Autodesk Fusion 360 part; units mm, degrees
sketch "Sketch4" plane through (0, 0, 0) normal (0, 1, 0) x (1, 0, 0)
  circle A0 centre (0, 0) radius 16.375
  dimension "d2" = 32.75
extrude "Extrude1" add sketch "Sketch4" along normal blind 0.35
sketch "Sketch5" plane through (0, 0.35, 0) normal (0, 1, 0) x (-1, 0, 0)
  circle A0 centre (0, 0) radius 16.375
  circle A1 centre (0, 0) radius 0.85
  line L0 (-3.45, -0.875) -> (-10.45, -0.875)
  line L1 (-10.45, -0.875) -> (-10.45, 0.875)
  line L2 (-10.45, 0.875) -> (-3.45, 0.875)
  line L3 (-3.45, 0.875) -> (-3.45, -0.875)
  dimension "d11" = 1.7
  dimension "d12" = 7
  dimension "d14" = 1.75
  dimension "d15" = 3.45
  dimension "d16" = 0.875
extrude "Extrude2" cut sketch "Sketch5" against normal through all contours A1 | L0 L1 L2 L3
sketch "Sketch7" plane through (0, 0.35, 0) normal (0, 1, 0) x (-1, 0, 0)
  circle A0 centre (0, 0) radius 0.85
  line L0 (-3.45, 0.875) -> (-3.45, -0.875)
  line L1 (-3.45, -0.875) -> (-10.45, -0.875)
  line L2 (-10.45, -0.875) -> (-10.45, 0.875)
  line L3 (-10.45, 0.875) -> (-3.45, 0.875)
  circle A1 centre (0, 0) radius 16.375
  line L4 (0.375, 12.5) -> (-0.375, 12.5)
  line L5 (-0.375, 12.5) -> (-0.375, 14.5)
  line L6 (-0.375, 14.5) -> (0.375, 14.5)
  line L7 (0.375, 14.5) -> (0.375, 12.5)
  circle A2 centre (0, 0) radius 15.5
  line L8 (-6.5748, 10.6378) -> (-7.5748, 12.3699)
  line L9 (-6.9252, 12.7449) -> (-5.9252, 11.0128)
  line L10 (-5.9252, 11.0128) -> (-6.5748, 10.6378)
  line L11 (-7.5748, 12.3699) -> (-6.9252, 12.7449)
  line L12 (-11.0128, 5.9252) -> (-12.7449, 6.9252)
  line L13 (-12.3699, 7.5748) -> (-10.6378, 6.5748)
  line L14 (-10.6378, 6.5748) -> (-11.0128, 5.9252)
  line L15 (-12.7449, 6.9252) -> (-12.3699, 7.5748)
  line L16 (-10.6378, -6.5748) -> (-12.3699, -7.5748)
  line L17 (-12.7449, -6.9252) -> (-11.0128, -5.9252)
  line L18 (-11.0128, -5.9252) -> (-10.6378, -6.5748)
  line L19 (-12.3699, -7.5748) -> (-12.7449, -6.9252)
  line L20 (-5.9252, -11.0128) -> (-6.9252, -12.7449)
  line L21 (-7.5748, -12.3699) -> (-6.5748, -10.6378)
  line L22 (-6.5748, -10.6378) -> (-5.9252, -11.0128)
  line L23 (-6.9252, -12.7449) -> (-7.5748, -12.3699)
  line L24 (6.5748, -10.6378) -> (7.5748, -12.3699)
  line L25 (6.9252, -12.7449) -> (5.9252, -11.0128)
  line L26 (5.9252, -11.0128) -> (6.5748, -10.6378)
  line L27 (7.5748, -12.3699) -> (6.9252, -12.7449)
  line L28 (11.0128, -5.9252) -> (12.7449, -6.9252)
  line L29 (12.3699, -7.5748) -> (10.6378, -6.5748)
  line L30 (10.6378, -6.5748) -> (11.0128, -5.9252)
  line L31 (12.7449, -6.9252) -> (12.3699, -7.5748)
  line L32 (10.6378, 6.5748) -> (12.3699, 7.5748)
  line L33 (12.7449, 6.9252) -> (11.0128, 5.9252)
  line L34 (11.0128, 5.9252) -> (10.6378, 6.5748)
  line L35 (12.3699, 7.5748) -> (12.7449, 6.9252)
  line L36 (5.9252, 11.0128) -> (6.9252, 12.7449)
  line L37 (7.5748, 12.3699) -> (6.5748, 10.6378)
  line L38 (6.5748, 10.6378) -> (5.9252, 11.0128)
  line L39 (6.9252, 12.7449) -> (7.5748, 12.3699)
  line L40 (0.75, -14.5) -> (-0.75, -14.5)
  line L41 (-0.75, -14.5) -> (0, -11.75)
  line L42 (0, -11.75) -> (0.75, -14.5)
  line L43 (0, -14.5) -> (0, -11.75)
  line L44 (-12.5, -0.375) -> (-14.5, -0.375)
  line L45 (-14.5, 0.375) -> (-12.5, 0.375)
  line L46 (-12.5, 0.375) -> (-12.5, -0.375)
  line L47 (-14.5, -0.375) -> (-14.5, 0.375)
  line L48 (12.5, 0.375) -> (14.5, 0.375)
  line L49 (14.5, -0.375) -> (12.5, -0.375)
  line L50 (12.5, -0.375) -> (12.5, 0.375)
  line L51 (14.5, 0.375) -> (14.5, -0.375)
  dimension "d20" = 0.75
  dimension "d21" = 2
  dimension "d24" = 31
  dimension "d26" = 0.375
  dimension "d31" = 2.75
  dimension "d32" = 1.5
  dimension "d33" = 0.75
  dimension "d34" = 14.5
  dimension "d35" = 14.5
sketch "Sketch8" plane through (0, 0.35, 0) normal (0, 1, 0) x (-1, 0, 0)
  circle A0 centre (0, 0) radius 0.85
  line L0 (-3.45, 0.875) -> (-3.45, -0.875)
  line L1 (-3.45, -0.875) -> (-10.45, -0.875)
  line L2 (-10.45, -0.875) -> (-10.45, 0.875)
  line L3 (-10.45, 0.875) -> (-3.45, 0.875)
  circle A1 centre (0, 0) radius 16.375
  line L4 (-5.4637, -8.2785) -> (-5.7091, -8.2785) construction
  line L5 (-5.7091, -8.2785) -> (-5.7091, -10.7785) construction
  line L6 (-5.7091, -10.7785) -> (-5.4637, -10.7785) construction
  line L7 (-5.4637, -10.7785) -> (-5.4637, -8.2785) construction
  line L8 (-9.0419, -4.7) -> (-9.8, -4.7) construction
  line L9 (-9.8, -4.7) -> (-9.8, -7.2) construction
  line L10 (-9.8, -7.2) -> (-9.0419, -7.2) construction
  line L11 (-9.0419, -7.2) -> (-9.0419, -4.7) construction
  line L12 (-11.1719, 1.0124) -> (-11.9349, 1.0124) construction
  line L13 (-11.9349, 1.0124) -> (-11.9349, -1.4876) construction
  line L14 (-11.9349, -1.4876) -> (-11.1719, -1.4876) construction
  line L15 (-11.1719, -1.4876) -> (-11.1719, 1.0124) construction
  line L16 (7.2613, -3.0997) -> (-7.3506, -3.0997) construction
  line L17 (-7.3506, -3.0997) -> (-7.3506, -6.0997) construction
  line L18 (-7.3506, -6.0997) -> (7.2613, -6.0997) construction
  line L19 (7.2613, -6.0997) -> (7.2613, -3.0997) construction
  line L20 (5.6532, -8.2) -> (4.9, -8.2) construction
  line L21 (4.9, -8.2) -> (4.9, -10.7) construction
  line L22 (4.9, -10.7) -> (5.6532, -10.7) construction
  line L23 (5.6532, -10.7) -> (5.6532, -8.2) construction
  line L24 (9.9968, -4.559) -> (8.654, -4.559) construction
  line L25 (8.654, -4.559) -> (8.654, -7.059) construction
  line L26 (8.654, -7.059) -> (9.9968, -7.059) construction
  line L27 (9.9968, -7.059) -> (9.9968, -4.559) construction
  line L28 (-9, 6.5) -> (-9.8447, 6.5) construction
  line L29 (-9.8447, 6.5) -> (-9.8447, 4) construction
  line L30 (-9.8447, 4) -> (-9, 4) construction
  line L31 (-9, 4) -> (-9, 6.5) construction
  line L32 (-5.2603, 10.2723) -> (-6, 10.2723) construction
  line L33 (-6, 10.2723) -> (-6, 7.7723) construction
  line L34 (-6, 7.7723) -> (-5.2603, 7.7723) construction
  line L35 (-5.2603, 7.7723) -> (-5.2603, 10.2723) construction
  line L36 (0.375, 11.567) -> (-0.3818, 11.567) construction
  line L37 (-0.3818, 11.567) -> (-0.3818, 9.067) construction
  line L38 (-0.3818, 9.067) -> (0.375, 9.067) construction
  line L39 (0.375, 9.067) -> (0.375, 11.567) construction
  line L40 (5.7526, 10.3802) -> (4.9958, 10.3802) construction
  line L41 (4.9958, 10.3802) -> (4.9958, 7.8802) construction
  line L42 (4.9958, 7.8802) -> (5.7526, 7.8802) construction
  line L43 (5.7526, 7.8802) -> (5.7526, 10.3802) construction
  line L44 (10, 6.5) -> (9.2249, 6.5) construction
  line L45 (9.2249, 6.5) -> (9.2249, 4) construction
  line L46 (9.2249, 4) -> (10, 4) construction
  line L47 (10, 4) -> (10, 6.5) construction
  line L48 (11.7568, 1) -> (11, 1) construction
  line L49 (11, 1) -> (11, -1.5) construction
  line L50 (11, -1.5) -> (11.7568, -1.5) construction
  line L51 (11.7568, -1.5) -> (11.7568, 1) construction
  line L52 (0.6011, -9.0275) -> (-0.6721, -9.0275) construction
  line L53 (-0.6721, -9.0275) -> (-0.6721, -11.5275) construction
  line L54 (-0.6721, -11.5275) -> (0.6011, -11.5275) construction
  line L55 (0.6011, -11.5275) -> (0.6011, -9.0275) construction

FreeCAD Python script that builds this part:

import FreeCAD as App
import Part
import Sketcher


def add_polygon(sketch, points):
    """Adds a closed chain of lines whose ends are joined by coincident constraints."""
    first, n = sketch.GeometryCount, len(points)
    for a, b in zip(points, points[1:] + points[:1]):
        sketch.addGeometry(Part.LineSegment(App.Vector(*a, 0), App.Vector(*b, 0)), False)
    for i in range(n):
        sketch.addConstraint(Sketcher.Constraint("Coincident", first + i, 2, first + (i + 1) % n, 1))

doc = App.newDocument("Part")
params = doc.addObject("Spreadsheet::Sheet", "Params")
for row, (alias, value) in enumerate([
    ("sketch1_diameter", "32.75 mm"),
    ("pad1_length", "0.35 mm"),
    ("sketch2_diameter", "1.7 mm"),
    ("sketch2_width", "7 mm"),
    ("sketch2_height", "1.75 mm"),
], start=1):
    params.set(f"A{row}", alias)
    params.set(f"B{row}", "=" + value)
    params.setAlias(f"B{row}", alias)

body = doc.addObject("PartDesign::Body", "Body")

# Sketch on XZ plane
sketch1 = body.newObject("Sketcher::SketchObject", "Sketch")
sketch1.AttachmentSupport = (doc.getObject("XZ_Plane"), [""])
sketch1.MapMode = "FlatFace"
sketch1.addGeometry(Part.Circle(App.Vector(0, 0, 0), App.Vector(0, 0, 1), 16), False)
sketch1.addConstraint(Sketcher.Constraint("Coincident", 0, 3, -1, 1))
sketch1.addConstraint(Sketcher.Constraint("Diameter", 0, 32.75))
sketch1.setExpression("Constraints[1]", "Params.sketch1_diameter")
pad1 = body.newObject("PartDesign::Pad", "Pad")
pad1.Profile = sketch1
pad1.setExpression("Length", "Params.pad1_length")
pad1.Reversed = True

# Sketch on XZ plane
sketch2 = body.newObject("Sketcher::SketchObject", "Sketch001")
sketch2.AttachmentSupport = (doc.getObject("XZ_Plane"), [""])
sketch2.MapMode = "FlatFace"
sketch2.AttachmentOffset = App.Placement(App.Vector(0, 0, -0.35), App.Rotation())
sketch2.addGeometry(Part.Circle(App.Vector(0, 0, 0), App.Vector(0, 0, 1), 0.8), False)  # 0
add_polygon(sketch2, [(10.4, -0.9), (3.5, -0.9), (3.5, 0.9), (10.4, 0.9)])  # lines 1-4
sketch2.addConstraint(Sketcher.Constraint("Horizontal", 1))
sketch2.addConstraint(Sketcher.Constraint("Vertical", 2))
sketch2.addConstraint(Sketcher.Constraint("Horizontal", 3))
sketch2.addConstraint(Sketcher.Constraint("Vertical", 4))
sketch2.addConstraint(Sketcher.Constraint("Coincident", 0, 3, -1, 1))
sketch2.addConstraint(Sketcher.Constraint("Diameter", 0, 1.7))
sketch2.addConstraint(Sketcher.Constraint("DistanceX", 1, 2, 1, 1, 7.0))
sketch2.addConstraint(Sketcher.Constraint("DistanceY", 2, 1, 2, 2, 1.75))
sketch2.addConstraint(Sketcher.Constraint("DistanceX", -1, 1, 1, 2, 3.45))
sketch2.addConstraint(Sketcher.Constraint("DistanceY", 1, 2, -1, 1, 0.875))
sketch2.setExpression("Constraints[9]", "Params.sketch2_diameter")
sketch2.setExpression("Constraints[10]", "Params.sketch2_width")
sketch2.setExpression("Constraints[11]", "Params.sketch2_height")
pocket1 = body.newObject("PartDesign::Pocket", "Pocket")
pocket1.Profile = sketch2
pocket1.Type = "ThroughAll"
pocket1.Reversed = True

doc.recompute()
